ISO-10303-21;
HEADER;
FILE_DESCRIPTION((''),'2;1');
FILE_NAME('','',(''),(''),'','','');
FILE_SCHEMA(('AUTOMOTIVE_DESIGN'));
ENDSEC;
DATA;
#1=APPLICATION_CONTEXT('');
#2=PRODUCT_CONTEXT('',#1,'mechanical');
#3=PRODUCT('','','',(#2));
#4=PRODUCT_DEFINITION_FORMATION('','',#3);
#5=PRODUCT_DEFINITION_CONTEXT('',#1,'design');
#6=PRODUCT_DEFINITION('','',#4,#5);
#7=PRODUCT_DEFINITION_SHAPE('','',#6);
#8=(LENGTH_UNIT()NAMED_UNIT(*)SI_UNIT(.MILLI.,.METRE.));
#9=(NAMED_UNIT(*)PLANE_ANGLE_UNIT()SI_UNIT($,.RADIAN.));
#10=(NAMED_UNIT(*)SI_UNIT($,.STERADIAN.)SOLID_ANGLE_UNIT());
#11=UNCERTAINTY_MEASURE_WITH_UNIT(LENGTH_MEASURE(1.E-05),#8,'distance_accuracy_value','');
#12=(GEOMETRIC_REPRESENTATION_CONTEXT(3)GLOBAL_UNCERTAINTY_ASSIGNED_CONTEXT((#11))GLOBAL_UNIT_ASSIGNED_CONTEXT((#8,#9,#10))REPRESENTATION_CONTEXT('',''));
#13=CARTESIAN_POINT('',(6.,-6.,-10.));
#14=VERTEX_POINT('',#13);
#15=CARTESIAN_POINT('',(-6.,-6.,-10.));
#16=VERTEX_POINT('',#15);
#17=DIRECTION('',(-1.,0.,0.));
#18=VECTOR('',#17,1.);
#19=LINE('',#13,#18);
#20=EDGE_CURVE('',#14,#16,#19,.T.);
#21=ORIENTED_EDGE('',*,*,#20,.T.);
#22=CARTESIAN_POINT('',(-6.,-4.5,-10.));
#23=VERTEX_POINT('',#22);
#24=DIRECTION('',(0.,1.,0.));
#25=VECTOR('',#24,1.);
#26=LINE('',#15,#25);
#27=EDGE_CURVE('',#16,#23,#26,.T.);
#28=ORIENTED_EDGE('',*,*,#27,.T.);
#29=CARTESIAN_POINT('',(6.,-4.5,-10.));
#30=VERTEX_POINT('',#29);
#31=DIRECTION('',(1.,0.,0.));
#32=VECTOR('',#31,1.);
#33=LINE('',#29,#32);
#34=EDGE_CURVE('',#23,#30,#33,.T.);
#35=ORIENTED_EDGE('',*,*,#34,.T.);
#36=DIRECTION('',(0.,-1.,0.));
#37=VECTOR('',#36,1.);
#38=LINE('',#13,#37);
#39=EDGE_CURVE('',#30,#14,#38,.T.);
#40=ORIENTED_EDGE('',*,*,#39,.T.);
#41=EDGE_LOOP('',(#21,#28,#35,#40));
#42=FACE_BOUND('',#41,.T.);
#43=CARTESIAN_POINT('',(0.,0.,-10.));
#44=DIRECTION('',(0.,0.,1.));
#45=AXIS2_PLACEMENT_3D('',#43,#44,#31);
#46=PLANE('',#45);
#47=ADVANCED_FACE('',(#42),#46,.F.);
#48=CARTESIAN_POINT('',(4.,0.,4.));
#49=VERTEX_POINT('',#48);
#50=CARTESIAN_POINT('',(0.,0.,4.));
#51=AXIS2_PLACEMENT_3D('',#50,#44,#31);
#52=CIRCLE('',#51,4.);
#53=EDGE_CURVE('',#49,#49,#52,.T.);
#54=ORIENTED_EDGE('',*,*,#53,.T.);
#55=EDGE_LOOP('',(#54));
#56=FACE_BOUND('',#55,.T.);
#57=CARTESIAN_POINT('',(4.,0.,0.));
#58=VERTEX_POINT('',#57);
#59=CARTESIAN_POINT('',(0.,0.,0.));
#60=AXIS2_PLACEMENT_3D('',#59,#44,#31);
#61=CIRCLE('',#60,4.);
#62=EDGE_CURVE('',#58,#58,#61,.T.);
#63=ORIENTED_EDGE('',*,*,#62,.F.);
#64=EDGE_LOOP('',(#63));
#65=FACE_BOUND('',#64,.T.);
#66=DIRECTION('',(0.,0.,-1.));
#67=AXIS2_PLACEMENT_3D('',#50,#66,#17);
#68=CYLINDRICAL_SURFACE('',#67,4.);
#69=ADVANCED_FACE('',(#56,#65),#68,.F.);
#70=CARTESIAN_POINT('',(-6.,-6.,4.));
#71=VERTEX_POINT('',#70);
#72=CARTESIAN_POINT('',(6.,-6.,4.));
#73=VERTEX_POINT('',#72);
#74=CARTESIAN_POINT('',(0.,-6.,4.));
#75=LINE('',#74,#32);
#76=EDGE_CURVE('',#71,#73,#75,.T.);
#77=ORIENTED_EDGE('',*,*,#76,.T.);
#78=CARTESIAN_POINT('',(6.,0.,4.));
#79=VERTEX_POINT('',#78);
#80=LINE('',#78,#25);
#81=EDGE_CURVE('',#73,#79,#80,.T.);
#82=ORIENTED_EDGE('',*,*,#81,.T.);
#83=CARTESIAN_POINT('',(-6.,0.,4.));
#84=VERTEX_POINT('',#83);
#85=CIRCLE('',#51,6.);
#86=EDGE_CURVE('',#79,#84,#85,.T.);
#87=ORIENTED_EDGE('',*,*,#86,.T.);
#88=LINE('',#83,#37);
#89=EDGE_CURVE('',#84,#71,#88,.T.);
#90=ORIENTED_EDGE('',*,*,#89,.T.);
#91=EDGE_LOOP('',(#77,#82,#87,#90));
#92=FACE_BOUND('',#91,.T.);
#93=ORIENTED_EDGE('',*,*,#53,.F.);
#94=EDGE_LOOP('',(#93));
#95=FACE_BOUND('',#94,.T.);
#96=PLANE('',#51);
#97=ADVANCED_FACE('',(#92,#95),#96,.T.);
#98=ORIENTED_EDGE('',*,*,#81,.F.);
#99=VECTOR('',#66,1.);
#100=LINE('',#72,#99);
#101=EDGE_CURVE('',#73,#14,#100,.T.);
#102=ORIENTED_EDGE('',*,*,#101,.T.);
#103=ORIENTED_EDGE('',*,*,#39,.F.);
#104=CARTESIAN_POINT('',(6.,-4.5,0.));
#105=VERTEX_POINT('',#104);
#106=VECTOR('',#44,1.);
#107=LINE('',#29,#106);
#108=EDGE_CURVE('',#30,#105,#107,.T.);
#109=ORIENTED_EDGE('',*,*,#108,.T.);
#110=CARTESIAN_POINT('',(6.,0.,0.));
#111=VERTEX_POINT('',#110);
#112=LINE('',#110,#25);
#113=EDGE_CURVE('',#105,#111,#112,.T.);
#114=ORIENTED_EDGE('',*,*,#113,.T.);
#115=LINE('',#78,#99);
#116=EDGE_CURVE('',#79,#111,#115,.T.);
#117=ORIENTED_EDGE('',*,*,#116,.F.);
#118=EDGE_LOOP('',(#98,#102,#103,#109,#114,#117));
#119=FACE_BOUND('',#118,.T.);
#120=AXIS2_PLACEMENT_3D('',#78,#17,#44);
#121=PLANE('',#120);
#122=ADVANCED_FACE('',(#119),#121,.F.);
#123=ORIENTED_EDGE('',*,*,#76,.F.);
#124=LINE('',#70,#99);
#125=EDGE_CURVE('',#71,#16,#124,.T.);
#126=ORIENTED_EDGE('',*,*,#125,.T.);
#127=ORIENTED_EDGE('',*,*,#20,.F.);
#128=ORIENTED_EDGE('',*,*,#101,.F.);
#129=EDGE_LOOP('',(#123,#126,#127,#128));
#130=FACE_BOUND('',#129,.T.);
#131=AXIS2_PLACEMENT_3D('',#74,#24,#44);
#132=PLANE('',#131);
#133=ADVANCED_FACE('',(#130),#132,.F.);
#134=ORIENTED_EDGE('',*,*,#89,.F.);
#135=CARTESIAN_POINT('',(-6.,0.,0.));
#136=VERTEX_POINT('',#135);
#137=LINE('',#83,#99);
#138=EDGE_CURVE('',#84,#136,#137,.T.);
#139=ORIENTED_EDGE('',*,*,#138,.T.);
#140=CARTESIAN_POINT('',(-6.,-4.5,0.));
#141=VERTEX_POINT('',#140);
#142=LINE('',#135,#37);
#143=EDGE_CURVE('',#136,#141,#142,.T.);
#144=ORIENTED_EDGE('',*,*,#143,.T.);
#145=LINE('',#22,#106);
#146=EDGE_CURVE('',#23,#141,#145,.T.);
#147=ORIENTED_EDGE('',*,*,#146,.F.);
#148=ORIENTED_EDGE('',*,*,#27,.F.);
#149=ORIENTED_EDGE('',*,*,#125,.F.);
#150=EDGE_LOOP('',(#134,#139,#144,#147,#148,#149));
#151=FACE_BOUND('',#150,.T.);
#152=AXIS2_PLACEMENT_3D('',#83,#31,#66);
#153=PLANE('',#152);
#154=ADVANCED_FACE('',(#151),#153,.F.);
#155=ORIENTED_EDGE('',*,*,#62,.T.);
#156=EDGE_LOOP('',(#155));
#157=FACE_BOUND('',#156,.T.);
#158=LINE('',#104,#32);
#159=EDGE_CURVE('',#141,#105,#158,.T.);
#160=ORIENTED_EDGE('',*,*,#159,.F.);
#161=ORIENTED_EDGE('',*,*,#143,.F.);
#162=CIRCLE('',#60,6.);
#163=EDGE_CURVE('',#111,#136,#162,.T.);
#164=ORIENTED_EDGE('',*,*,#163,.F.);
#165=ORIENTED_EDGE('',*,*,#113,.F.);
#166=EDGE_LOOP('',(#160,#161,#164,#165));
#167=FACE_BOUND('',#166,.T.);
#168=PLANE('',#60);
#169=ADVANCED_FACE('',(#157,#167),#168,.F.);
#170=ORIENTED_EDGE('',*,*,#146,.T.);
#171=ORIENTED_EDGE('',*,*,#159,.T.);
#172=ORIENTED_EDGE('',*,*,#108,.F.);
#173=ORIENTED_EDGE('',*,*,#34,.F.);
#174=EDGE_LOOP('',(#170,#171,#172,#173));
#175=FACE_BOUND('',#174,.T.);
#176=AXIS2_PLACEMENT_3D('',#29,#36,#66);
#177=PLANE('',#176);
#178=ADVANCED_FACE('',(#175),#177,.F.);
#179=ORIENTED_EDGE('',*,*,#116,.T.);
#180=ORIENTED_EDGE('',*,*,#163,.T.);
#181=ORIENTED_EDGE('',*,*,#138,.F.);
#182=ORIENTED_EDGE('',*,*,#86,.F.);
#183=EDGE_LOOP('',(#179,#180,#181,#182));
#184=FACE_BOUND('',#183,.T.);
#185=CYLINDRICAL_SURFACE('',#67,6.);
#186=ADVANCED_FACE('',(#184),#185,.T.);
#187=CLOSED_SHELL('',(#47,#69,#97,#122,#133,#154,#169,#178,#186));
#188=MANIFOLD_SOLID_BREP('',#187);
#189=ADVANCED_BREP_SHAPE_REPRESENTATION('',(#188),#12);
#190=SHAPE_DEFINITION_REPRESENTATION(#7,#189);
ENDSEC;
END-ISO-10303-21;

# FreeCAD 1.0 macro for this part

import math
import FreeCAD as App
import Part
import Sketcher
from FreeCAD import Vector
Q = App.Units.Quantity

doc = App.newDocument("Part")
body = doc.addObject("PartDesign::Body", "Body")

sketch1 = body.newObject("Sketcher::SketchObject", "Sketch")
sketch1.AttachmentSupport = (doc.getObject("XY_Plane"), [""])
sketch1.MapMode = "FlatFace"
sketch1.addGeometry(Part.LineSegment(Vector(-6, 0, 0), Vector(-6, -6, 0)), False)
sketch1.addGeometry(Part.LineSegment(Vector(-6, -6, 0), Vector(6, -6, 0)), False)
sketch1.addGeometry(Part.LineSegment(Vector(6, -6, 0), Vector(6, 0, 0)), False)
sketch1.addGeometry(Part.ArcOfCircle(Part.Circle(Vector(0, 0, 0), Vector(0, 0, 1), 6), math.radians(0), math.radians(180)), False)
sketch1.addGeometry(Part.Circle(Vector(0, 0, 0), Vector(0, 0, 1), 4), False)
sketch1.addConstraint(Sketcher.Constraint("Coincident", 0, 2, 1, 1))
sketch1.addConstraint(Sketcher.Constraint("Coincident", 1, 2, 2, 1))
sketch1.addConstraint(Sketcher.Constraint("Tangent", 2, 2, 3, 1))
sketch1.addConstraint(Sketcher.Constraint("Tangent", 3, 2, 0, 1))
sketch1.addConstraint(Sketcher.Constraint("Vertical", 0))
sketch1.addConstraint(Sketcher.Constraint("Horizontal", 1))
sketch1.addConstraint(Sketcher.Constraint("Vertical", 2))
sketch1.addConstraint(Sketcher.Constraint("Coincident", 3, 3, -1, 1))
sketch1.addConstraint(Sketcher.Constraint("Coincident", 4, 3, -1, 1))
sketch1.addConstraint(Sketcher.Constraint("Diameter", 4, Q("8 mm")))
sketch1.addConstraint(Sketcher.Constraint("Radius", 3, Q("6 mm")))
sketch1.addConstraint(Sketcher.Constraint("DistanceY", 0, 2, 0, 1, Q("6 mm")))
pad1 = body.newObject("PartDesign::Pad", "Pad")
pad1.Profile = sketch1
pad1.Length = 4

sketch2 = body.newObject("Sketcher::SketchObject", "Sketch001")
sketch2.AttachmentSupport = (doc.getObject("XY_Plane"), [""])
sketch2.MapMode = "FlatFace"
sketch2.addGeometry(Part.LineSegment(Vector(6, -4.5, 0), Vector(6, -6, 0)), False)
sketch2.addGeometry(Part.LineSegment(Vector(6, -6, 0), Vector(-6, -6, 0)), False)
sketch2.addGeometry(Part.LineSegment(Vector(-6, -6, 0), Vector(-6, -4.5, 0)), False)
sketch2.addGeometry(Part.LineSegment(Vector(-6, -4.5, 0), Vector(6, -4.5, 0)), False)
sketch2.addConstraint(Sketcher.Constraint("Coincident", 0, 2, 1, 1))
sketch2.addConstraint(Sketcher.Constraint("Coincident", 1, 2, 2, 1))
sketch2.addConstraint(Sketcher.Constraint("Coincident", 2, 2, 3, 1))
sketch2.addConstraint(Sketcher.Constraint("Coincident", 3, 2, 0, 1))
sketch2.addConstraint(Sketcher.Constraint("Vertical", 0))
sketch2.addConstraint(Sketcher.Constraint("Horizontal", 1))
sketch2.addConstraint(Sketcher.Constraint("Vertical", 2))
sketch2.addConstraint(Sketcher.Constraint("Horizontal", 3))
sketch2.addConstraint(Sketcher.Constraint("DistanceX", 1, 2, 1, 1, Q("12 mm")))
sketch2.addConstraint(Sketcher.Constraint("DistanceY", 0, 2, 0, 1, Q("1.5 mm")))
sketch2.addConstraint(Sketcher.Constraint("DistanceX", -1, 1, 0, 2, Q("6 mm")))
sketch2.addConstraint(Sketcher.Constraint("DistanceY", 0, 2, -1, 1, Q("6 mm")))
pad2 = body.newObject("PartDesign::Pad", "Pad001")
pad2.Profile = sketch2
pad2.Length = 10
pad2.Reversed = True

doc.recompute()
